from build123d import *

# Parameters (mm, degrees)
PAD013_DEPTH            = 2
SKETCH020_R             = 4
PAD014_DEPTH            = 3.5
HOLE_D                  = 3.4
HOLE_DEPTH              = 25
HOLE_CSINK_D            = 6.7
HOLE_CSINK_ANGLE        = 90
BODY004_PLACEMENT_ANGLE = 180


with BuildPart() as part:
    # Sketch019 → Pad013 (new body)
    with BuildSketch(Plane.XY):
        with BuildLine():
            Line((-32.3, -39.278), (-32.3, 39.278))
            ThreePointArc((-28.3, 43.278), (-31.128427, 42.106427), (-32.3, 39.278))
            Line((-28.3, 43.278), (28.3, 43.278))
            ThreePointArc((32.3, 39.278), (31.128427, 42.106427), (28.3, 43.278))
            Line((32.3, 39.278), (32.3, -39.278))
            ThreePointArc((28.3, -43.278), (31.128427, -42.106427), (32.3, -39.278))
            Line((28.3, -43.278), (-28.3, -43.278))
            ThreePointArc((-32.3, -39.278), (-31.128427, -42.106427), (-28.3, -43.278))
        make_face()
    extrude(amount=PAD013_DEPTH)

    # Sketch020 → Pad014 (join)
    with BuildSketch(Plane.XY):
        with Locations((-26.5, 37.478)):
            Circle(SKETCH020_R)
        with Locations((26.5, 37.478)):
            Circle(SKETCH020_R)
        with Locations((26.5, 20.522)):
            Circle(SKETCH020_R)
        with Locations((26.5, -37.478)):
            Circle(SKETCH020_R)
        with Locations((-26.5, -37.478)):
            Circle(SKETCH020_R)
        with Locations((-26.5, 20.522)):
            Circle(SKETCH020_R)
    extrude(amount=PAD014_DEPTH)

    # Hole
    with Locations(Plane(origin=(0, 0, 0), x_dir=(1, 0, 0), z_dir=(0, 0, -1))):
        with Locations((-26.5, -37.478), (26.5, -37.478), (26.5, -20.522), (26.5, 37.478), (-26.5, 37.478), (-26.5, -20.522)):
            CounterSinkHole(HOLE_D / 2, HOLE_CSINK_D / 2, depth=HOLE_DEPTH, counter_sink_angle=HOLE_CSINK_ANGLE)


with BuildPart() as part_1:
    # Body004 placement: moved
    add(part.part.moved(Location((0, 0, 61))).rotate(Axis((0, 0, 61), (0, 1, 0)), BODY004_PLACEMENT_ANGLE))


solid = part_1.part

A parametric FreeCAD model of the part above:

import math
import FreeCAD as App
import Part
import Sketcher

doc = App.newDocument("Part")
body = doc.addObject("PartDesign::Body", "Body")

# Sketch on XY plane
sketch1 = body.newObject("Sketcher::SketchObject", "Sketch")
sketch1.AttachmentSupport = (doc.getObject("XY_Plane"), [""])
sketch1.MapMode = "FlatFace"
sketch1.addGeometry(Part.LineSegment(App.Vector(-32.3, 39.278, 0), App.Vector(-32.3, -39.278, 0)), False)
sketch1.addGeometry(Part.ArcOfCircle(Part.Circle(App.Vector(-28.3, -39.278, 0), App.Vector(0, 0, 1), 4), math.radians(-179.999994), math.radians(-90.000006)), False)
sketch1.addGeometry(Part.LineSegment(App.Vector(-28.3, -43.278, 0), App.Vector(28.3, -43.278, 0)), False)
sketch1.addGeometry(Part.ArcOfCircle(Part.Circle(App.Vector(28.3, -39.278, 0), App.Vector(0, 0, 1), 4), math.radians(-89.999994), math.radians(-0.000006)), False)
sketch1.addGeometry(Part.LineSegment(App.Vector(32.3, -39.278, 0), App.Vector(32.3, 39.278, 0)), False)
sketch1.addGeometry(Part.ArcOfCircle(Part.Circle(App.Vector(28.3, 39.278, 0), App.Vector(0, 0, 1), 4), math.radians(0.000006), math.radians(89.999994)), False)
sketch1.addGeometry(Part.LineSegment(App.Vector(28.3, 43.278, 0), App.Vector(-28.3, 43.278, 0)), False)
sketch1.addGeometry(Part.ArcOfCircle(Part.Circle(App.Vector(-28.3, 39.278, 0), App.Vector(0, 0, 1), 4), math.radians(90.000006), math.radians(179.999994)), False)
sketch1.addConstraint(Sketcher.Constraint("Tangent", 0, 2, 1, 1))
sketch1.addConstraint(Sketcher.Constraint("Tangent", 1, 2, 2, 1))
sketch1.addConstraint(Sketcher.Constraint("Tangent", 2, 2, 3, 1))
sketch1.addConstraint(Sketcher.Constraint("Tangent", 3, 2, 4, 1))
sketch1.addConstraint(Sketcher.Constraint("Tangent", 4, 2, 5, 1))
sketch1.addConstraint(Sketcher.Constraint("Tangent", 5, 2, 6, 1))
sketch1.addConstraint(Sketcher.Constraint("Tangent", 6, 2, 7, 1))
sketch1.addConstraint(Sketcher.Constraint("Tangent", 7, 2, 0, 1))
sketch1.addConstraint(Sketcher.Constraint("Vertical", 0))
sketch1.addConstraint(Sketcher.Constraint("Horizontal", 2))
sketch1.addConstraint(Sketcher.Constraint("Vertical", 4))
sketch1.addConstraint(Sketcher.Constraint("Horizontal", 6))
sketch1.addConstraint(Sketcher.Constraint("Equal", 1, 3))
sketch1.addConstraint(Sketcher.Constraint("Equal", 3, 5))
sketch1.addConstraint(Sketcher.Constraint("Equal", 5, 7))
sketch1.addConstraint(Sketcher.Constraint("Symmetric", 1, 3, 5, 3, -1, 1))
sketch1.addConstraint(Sketcher.Constraint("Radius", 1, 4.0))
sketch1.addConstraint(Sketcher.Constraint("DistanceX", 2, 1, 2, 2, 56.6))
sketch1.addConstraint(Sketcher.Constraint("DistanceY", 0, 2, 0, 1, 78.556))
pad1 = body.newObject("PartDesign::Pad", "Pad")
pad1.Profile = sketch1
pad1.Length = 2

# Sketch on XY plane
sketch2 = body.newObject("Sketcher::SketchObject", "Sketch001")
sketch2.AttachmentSupport = (doc.getObject("XY_Plane"), [""])
sketch2.MapMode = "FlatFace"
sketch2.addGeometry(Part.Circle(App.Vector(-26.5, 37.478, 0), App.Vector(0, 0, 1), 4), False)
sketch2.addGeometry(Part.Circle(App.Vector(26.5, 37.478, 0), App.Vector(0, 0, 1), 4), False)
sketch2.addGeometry(Part.Circle(App.Vector(26.5, 20.522, 0), App.Vector(0, 0, 1), 4), False)
sketch2.addGeometry(Part.Circle(App.Vector(26.5, -37.478, 0), App.Vector(0, 0, 1), 4), False)
sketch2.addGeometry(Part.Circle(App.Vector(-26.5, -37.478, 0), App.Vector(0, 0, 1), 4), False)
sketch2.addGeometry(Part.Circle(App.Vector(-26.5, 20.522, 0), App.Vector(0, 0, 1), 4), False)
sketch2.addConstraint(Sketcher.Constraint("Equal", 0, 1))
sketch2.addConstraint(Sketcher.Constraint("Equal", 1, 2))
sketch2.addConstraint(Sketcher.Constraint("Equal", 2, 3))
sketch2.addConstraint(Sketcher.Constraint("Equal", 3, 4))
sketch2.addConstraint(Sketcher.Constraint("Equal", 4, 5))
sketch2.addConstraint(Sketcher.Constraint("Symmetric", 0, 3, 3, 3, -1, 1))
sketch2.addConstraint(Sketcher.Constraint("Symmetric", 1, 3, 4, 3, -1, 1))
sketch2.addConstraint(Sketcher.Constraint("Symmetric", 0, 3, 1, 3, -2))
sketch2.addConstraint(Sketcher.Constraint("Symmetric", 2, 3, 5, 3, -2))
sketch2.addConstraint(Sketcher.Constraint("Vertical", 1, 3, 2, 3))
sketch2.addConstraint(Sketcher.Constraint("Diameter", 0, 8.0))
sketch2.addConstraint(Sketcher.Constraint("DistanceX", 0, 3, 1, 3, 53.0))
sketch2.addConstraint(Sketcher.Constraint("DistanceY", 3, 3, 2, 3, 58.0))
sketch2.addConstraint(Sketcher.Constraint("DistanceY", -1, 1, 0, 3, 37.478))
pad2 = body.newObject("PartDesign::Pad", "Pad001")
pad2.Profile = sketch2
pad2.Length = 3.5

# Sketch on XY plane
sketch3 = body.newObject("Sketcher::SketchObject", "Sketch002")
sketch3.AttachmentSupport = (doc.getObject("XY_Plane"), [""])
sketch3.MapMode = "FlatFace"
sketch3.addGeometry(Part.Circle(App.Vector(-26.5, 37.478, 0), App.Vector(0, 0, 1), 1.7), False)
sketch3.addGeometry(Part.Circle(App.Vector(26.5, 37.478, 0), App.Vector(0, 0, 1), 1.7), False)
sketch3.addGeometry(Part.Circle(App.Vector(26.5, 20.522, 0), App.Vector(0, 0, 1), 1.7), False)
sketch3.addGeometry(Part.Circle(App.Vector(26.5, -37.478, 0), App.Vector(0, 0, 1), 1.7), False)
sketch3.addGeometry(Part.Circle(App.Vector(-26.5, -37.478, 0), App.Vector(0, 0, 1), 1.7), False)
sketch3.addGeometry(Part.Circle(App.Vector(-26.5, 20.522, 0), App.Vector(0, 0, 1), 1.7), False)
sketch3.addConstraint(Sketcher.Constraint("Equal", 0, 1))
sketch3.addConstraint(Sketcher.Constraint("Equal", 1, 2))
sketch3.addConstraint(Sketcher.Constraint("Equal", 2, 3))
sketch3.addConstraint(Sketcher.Constraint("Equal", 3, 4))
sketch3.addConstraint(Sketcher.Constraint("Equal", 4, 5))
sketch3.addConstraint(Sketcher.Constraint("Symmetric", 0, 3, 3, 3, -1, 1))
sketch3.addConstraint(Sketcher.Constraint("Symmetric", 1, 3, 4, 3, -1, 1))
sketch3.addConstraint(Sketcher.Constraint("Symmetric", 0, 3, 1, 3, -2))
sketch3.addConstraint(Sketcher.Constraint("Symmetric", 2, 3, 5, 3, -2))
sketch3.addConstraint(Sketcher.Constraint("Vertical", 1, 3, 2, 3))
sketch3.addConstraint(Sketcher.Constraint("Diameter", 0, 3.4))
sketch3.addConstraint(Sketcher.Constraint("DistanceX", 0, 3, 1, 3, 53.0))
sketch3.addConstraint(Sketcher.Constraint("DistanceY", 3, 3, 2, 3, 58.0))
sketch3.addConstraint(Sketcher.Constraint("DistanceY", -1, 1, 0, 3, 37.478))
doc.recompute()
hole = body.newObject("PartDesign::Hole", "Hole")
hole.Profile = sketch3
hole.ThreadType = "None"
hole.Diameter = 3.4
hole.DepthType = "Dimension"
hole.Depth = 25
hole.DrillPoint = "Flat"
hole.HoleCutType = "Countersink"
hole.HoleCutDiameter = 6.7
hole.HoleCutCountersinkAngle = 90
hole.Reversed = True
body2 = doc.addObject("PartDesign::Body", "Body001")
doc.recompute()

body.Placement = App.Placement(App.Vector(0, 0, 61), App.Rotation(App.Vector(0, 1, 0), 180))
boolean = body2.newObject("PartDesign::Boolean", "Boolean")
boolean.Type = "Fuse"
boolean.addObjects([body])

doc.recompute()
